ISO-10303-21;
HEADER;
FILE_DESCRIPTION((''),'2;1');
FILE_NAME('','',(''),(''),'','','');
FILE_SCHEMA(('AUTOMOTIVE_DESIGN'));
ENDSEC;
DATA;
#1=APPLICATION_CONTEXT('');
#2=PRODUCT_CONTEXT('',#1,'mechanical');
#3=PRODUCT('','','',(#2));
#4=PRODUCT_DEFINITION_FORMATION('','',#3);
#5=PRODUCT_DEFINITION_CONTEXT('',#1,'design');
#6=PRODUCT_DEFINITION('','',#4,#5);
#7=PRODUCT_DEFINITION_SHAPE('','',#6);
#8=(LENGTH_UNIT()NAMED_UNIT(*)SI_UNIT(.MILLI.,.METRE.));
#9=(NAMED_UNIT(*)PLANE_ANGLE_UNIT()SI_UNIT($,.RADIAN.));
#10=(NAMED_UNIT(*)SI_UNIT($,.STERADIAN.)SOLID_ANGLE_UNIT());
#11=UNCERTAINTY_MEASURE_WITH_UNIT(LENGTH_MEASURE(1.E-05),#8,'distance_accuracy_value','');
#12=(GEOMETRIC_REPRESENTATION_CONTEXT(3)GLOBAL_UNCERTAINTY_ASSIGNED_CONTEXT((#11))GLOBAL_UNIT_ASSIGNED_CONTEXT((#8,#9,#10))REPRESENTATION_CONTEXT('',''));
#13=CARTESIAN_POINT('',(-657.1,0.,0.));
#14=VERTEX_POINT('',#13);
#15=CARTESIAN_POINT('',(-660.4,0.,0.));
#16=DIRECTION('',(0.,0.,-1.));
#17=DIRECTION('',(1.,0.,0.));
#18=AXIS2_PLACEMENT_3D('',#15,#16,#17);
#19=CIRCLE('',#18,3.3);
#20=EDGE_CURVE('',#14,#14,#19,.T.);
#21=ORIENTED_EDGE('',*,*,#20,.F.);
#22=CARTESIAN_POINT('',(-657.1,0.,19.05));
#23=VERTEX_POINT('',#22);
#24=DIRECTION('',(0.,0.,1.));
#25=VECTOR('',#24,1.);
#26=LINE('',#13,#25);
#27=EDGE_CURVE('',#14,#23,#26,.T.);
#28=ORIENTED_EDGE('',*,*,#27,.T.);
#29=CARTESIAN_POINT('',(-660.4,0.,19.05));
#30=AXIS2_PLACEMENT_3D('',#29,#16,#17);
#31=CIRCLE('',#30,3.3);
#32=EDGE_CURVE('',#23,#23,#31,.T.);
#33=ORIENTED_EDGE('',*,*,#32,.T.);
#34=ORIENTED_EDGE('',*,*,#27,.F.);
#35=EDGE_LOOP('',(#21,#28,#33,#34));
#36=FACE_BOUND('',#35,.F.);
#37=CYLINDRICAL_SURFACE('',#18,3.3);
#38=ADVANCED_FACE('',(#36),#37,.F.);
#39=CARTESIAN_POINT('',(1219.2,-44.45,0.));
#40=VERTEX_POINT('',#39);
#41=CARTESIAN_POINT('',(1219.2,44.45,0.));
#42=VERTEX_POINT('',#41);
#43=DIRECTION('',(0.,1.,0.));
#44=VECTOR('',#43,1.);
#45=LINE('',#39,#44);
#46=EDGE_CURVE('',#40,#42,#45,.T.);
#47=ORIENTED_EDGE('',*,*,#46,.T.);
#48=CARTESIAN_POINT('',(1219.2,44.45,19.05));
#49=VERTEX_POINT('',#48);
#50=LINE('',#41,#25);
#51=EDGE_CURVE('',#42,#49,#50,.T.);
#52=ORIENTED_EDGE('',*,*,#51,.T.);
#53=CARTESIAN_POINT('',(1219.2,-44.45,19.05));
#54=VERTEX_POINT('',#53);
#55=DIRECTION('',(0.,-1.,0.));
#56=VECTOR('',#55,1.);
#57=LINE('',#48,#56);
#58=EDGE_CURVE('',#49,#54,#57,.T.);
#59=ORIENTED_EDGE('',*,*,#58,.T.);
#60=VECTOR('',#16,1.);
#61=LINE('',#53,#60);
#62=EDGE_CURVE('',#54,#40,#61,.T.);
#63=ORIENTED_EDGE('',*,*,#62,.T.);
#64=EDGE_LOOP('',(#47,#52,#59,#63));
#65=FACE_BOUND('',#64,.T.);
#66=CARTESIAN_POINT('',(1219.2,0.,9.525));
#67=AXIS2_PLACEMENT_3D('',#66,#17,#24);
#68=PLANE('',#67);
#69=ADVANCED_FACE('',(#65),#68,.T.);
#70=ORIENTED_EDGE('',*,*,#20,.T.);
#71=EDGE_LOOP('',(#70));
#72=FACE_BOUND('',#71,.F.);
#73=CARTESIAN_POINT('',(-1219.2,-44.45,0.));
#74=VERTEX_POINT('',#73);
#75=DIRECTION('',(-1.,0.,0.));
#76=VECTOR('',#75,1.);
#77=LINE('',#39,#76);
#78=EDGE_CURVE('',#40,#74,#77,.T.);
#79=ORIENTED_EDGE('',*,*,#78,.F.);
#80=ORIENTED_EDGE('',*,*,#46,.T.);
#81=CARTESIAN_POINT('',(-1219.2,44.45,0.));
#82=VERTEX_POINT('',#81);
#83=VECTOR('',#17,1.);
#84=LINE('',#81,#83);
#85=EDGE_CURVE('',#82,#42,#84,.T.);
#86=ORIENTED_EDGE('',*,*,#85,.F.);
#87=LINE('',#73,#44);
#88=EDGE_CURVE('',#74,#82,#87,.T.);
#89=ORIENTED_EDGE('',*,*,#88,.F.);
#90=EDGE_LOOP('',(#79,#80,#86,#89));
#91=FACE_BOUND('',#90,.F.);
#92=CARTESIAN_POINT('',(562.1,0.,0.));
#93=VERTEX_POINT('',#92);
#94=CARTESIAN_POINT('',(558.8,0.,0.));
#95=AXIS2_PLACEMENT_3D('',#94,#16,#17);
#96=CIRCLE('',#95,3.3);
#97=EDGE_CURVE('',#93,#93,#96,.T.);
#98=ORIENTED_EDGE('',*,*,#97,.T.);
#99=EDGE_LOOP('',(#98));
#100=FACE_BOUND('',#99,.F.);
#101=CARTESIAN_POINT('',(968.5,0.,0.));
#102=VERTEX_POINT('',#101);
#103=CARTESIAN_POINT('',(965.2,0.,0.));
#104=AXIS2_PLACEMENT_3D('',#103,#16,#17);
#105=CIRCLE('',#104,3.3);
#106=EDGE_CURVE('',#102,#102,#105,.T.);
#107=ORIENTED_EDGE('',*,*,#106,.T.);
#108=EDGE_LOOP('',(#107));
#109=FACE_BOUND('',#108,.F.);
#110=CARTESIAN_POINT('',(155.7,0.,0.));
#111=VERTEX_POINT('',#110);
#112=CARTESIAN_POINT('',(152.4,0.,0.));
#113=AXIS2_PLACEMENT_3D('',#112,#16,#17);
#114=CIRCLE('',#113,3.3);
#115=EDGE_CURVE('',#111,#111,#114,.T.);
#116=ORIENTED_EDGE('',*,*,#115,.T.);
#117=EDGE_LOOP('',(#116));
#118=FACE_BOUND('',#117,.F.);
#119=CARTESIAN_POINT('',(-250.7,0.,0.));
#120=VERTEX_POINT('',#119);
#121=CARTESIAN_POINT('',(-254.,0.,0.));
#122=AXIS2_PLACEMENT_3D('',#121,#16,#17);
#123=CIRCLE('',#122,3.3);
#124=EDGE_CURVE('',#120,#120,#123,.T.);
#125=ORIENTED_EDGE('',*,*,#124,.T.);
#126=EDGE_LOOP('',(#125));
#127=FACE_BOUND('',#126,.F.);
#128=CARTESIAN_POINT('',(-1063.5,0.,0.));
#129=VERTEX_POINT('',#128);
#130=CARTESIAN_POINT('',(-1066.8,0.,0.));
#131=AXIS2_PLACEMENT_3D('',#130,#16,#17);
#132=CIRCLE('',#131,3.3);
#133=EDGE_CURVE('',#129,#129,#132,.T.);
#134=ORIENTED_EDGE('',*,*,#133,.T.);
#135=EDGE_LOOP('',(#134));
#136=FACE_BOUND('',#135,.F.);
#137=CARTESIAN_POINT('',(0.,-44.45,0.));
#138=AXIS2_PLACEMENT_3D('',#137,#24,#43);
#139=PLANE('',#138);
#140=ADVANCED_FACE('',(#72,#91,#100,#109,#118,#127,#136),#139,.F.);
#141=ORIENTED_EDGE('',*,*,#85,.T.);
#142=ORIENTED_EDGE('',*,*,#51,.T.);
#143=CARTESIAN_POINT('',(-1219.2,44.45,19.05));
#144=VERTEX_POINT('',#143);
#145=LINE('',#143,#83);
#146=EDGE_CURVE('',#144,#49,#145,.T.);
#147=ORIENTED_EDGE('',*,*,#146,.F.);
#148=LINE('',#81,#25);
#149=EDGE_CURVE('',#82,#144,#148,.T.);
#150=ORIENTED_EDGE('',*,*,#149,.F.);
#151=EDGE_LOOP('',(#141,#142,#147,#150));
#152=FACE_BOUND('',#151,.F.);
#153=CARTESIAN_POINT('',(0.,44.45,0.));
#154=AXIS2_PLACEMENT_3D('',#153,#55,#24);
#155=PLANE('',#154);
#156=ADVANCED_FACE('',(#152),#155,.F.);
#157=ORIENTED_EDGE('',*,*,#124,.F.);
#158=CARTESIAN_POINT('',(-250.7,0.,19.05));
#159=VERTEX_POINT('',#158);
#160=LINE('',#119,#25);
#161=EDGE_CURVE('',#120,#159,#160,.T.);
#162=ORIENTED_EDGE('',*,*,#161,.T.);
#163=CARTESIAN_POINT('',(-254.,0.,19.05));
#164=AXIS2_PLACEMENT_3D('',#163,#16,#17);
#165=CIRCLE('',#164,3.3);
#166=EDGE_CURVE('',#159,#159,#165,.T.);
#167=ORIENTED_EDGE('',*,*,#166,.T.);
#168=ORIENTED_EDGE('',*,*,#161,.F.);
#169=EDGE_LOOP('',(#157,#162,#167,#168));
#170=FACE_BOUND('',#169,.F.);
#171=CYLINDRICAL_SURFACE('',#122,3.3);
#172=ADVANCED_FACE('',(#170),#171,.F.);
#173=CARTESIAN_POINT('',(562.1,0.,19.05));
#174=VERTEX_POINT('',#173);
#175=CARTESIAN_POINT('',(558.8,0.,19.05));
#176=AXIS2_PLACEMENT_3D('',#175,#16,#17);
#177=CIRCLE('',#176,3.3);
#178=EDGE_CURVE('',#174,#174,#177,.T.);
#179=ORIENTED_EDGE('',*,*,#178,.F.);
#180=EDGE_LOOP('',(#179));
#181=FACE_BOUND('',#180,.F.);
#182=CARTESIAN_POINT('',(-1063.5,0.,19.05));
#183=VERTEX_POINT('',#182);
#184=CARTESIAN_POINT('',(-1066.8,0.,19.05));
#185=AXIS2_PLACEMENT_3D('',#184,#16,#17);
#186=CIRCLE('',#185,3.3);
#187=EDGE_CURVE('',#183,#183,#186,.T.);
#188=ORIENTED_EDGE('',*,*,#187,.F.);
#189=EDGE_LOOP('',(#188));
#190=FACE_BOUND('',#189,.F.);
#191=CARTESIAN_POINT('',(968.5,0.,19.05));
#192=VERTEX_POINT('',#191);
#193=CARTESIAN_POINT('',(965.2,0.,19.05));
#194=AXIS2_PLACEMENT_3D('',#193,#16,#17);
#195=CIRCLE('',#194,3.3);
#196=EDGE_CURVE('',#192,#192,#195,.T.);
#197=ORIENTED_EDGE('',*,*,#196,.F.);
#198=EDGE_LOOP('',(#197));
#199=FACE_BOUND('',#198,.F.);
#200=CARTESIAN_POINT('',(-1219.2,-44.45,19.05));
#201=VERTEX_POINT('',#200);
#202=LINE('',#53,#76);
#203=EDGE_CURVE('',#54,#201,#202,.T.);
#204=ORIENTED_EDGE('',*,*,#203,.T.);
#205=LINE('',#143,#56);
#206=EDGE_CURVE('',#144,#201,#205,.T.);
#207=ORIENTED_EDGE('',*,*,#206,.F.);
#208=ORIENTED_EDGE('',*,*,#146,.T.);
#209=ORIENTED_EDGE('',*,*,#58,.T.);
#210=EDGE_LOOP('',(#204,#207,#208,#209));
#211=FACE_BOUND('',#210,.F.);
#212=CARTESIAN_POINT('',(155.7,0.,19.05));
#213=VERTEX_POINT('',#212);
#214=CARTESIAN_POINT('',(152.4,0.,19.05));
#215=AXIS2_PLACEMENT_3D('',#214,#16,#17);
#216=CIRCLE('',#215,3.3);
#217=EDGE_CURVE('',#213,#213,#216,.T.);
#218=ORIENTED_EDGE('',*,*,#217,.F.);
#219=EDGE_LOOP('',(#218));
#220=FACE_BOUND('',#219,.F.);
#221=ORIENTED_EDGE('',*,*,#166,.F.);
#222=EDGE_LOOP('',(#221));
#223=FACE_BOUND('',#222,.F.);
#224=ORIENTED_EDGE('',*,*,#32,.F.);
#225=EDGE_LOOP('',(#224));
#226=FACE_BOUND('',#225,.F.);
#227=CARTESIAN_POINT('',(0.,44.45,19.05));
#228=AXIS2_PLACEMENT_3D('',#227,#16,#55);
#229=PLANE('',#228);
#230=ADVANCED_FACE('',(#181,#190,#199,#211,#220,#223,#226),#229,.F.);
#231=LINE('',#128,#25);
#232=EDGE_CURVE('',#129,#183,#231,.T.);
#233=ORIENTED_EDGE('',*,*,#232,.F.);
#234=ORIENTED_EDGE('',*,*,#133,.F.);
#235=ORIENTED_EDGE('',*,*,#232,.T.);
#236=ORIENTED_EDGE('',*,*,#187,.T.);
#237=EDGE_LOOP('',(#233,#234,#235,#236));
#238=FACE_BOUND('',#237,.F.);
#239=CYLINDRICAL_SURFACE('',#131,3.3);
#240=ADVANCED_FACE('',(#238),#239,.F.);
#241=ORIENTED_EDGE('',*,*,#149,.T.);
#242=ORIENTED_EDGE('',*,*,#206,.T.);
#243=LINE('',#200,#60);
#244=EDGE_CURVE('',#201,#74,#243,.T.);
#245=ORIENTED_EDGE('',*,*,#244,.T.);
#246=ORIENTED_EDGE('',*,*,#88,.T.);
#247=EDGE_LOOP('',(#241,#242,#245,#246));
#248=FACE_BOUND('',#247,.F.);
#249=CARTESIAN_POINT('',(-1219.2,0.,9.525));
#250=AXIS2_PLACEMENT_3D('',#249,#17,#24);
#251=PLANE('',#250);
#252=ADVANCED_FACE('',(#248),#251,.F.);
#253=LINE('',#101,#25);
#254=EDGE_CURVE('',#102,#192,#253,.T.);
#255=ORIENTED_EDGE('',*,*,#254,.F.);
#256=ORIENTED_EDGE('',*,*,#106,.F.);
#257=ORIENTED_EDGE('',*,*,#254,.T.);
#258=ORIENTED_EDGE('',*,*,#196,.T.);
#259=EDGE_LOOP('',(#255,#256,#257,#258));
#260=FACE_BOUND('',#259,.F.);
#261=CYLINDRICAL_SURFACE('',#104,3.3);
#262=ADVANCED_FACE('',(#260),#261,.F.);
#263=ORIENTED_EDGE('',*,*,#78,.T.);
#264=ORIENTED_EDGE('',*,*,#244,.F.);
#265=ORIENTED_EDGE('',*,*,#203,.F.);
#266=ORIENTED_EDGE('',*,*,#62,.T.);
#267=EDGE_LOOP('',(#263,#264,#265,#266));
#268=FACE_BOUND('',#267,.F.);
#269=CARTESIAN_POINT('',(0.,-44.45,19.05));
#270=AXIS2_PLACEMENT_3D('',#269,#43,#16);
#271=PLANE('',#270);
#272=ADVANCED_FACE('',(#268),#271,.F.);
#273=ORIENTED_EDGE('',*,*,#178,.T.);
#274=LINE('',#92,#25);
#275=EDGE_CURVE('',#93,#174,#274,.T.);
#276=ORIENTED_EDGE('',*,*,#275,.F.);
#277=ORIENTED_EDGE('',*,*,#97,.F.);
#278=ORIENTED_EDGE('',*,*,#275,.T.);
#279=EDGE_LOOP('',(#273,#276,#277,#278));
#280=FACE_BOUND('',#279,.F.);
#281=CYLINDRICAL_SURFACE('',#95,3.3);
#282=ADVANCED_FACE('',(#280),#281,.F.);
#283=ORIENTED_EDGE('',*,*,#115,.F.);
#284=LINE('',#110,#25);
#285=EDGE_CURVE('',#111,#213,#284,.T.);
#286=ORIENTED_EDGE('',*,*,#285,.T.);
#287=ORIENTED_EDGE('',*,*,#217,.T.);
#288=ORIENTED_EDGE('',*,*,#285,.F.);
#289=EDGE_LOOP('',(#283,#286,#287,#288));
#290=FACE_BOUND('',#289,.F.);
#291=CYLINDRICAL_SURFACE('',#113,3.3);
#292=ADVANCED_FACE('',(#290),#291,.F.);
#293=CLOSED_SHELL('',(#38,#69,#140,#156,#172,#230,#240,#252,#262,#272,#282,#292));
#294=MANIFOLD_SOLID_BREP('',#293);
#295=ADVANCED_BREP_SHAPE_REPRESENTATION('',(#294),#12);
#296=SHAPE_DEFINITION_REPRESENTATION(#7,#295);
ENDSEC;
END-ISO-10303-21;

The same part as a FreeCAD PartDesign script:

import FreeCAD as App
import Part
import Sketcher
Q = App.Units.Quantity


def add_polygon(sketch, points):
    """Adds a closed chain of lines whose ends are joined by coincident constraints."""
    first, n = sketch.GeometryCount, len(points)
    for a, b in zip(points, points[1:] + points[:1]):
        sketch.addGeometry(Part.LineSegment(App.Vector(*a, 0), App.Vector(*b, 0)), False)
    for i in range(n):
        sketch.addConstraint(Sketcher.Constraint("Coincident", first + i, 2, first + (i + 1) % n, 1))

doc = App.newDocument("Part")
body = doc.addObject("PartDesign::Body", "Body")

sketch1 = doc.addObject("Sketcher::SketchObject", "Sketch")
body.addObject(sketch1)
sketch1.AttachmentSupport = (doc.YZ_Plane, [""])
sketch1.MapMode = "FlatFace"
add_polygon(sketch1, [(-44.45, 19.05), (-44.45, 0), (44.45, 0), (44.45, 19.05)])
sketch1.addConstraint(Sketcher.Constraint("Vertical", 0))
sketch1.addConstraint(Sketcher.Constraint("Horizontal", 1))
sketch1.addConstraint(Sketcher.Constraint("Vertical", 2))
sketch1.addConstraint(Sketcher.Constraint("Horizontal", 3))
sketch1.addConstraint(Sketcher.Constraint("Symmetric", 0, 2, 1, 2, -1, 1))
sketch1.addConstraint(Sketcher.Constraint("DistanceX", 1, 1, 1, 2, Q("3.5 in")))
sketch1.addConstraint(Sketcher.Constraint("DistanceY", 0, 2, 0, 1, Q("0.75 in")))
pad1 = doc.addObject("PartDesign::Pad", "Pad")
body.addObject(pad1)
pad1.Profile = sketch1
pad1.Length = Q("96 in")
pad1.Midplane = True

sketch2 = doc.addObject("Sketcher::SketchObject", "Sketch001")
body.addObject(sketch2)
sketch2.AttachmentSupport = (doc.XY_Plane, [""])
sketch2.MapMode = "FlatFace"
sketch2.addGeometry(Part.Circle(App.Vector(-1066.8, 0, 0), App.Vector(0, 0, 1), 3.3), False)
sketch2.addConstraint(Sketcher.Constraint("PointOnObject", 0, 3, -1))
sketch2.addConstraint(Sketcher.Constraint("DistanceX", 0, 3, -1, 1, Q("42 in")))
sketch2.addConstraint(Sketcher.Constraint("Diameter", 0, 6.6))
pocket1 = doc.addObject("PartDesign::Pocket", "Pocket")
body.addObject(pocket1)
pocket1.Profile = sketch2
pocket1.Type = "ThroughAll"
pocket1.Reversed = True
doc.recompute()

linearpattern = doc.addObject("PartDesign::LinearPattern", "LinearPattern")
body.addObject(linearpattern)
linearpattern.Originals = [pocket1]
linearpattern.Direction = (doc.X_Axis, [""])
linearpattern.Mode = "offset"
linearpattern.Offset = Q("16 in")
linearpattern.Occurrences = 6
body.Tip = linearpattern

doc.recompute()
